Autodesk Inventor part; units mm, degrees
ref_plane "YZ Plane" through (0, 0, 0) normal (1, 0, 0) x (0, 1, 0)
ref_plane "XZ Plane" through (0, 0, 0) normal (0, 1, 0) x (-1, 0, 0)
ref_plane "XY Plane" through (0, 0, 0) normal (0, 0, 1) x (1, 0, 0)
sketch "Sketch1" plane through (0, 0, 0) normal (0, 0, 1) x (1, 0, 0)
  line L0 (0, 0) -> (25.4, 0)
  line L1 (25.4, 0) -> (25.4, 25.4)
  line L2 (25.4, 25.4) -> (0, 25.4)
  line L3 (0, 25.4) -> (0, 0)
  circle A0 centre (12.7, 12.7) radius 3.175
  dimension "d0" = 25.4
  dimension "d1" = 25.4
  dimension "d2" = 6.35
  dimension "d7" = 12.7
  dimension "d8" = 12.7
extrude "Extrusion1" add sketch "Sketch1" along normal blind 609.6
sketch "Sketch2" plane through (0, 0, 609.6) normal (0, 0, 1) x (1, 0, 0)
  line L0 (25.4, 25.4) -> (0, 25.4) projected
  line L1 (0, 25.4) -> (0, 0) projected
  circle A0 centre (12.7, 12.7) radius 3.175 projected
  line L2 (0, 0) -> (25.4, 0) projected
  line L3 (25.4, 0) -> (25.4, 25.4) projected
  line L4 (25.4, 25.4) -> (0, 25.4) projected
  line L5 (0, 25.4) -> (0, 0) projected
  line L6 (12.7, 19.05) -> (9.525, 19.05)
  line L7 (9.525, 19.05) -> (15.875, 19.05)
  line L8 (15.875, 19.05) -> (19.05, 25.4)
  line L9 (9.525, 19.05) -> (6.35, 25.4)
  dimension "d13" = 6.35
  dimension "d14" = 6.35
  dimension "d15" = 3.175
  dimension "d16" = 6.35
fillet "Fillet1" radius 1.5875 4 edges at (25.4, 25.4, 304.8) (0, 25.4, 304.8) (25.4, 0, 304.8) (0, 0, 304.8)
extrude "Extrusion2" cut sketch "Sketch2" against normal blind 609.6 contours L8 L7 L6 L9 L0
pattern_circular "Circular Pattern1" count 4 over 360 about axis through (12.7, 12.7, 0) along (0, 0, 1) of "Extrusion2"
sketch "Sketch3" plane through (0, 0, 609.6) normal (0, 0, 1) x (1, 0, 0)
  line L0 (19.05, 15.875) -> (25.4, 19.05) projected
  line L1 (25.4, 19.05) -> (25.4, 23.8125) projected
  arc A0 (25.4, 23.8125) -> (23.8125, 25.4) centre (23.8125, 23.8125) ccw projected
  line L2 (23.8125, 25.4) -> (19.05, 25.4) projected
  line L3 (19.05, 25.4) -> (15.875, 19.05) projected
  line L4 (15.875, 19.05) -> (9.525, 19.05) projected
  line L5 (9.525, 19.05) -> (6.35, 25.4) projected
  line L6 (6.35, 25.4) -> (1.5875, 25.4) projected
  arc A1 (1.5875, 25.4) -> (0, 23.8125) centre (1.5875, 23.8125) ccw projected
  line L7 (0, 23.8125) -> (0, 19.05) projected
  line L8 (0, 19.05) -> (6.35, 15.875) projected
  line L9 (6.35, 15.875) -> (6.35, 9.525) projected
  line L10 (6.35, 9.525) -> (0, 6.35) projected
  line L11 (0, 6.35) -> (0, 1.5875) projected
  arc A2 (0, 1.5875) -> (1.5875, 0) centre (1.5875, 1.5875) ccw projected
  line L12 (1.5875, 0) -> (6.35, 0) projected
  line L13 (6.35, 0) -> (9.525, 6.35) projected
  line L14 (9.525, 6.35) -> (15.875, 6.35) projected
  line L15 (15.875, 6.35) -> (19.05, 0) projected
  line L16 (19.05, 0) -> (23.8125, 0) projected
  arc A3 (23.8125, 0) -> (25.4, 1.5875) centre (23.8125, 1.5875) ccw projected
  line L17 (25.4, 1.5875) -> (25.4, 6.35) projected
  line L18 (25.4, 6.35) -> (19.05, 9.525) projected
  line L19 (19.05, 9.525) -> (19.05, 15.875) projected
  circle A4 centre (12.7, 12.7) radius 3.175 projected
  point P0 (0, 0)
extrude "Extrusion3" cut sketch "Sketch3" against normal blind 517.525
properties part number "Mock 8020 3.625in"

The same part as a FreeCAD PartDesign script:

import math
import FreeCAD as App
import Part
import Sketcher

V = App.Vector
Q = App.Units.Quantity


def edges_at(feature, points):
    """Names of the edges that pass closest to the given points."""
    edges = feature.Shape.Edges
    near = lambda p: min(range(len(edges)), key=lambda i: edges[i].distToShape(Part.Vertex(*p))[0])
    return sorted({f"Edge{near(p) + 1}" for p in points})


def add_polygon(sketch, points):
    """Adds a closed chain of lines whose ends are joined by coincident constraints."""
    first, n = sketch.GeometryCount, len(points)
    for a, b in zip(points, points[1:] + points[:1]):
        sketch.addGeometry(Part.LineSegment(App.Vector(*a, 0), App.Vector(*b, 0)), False)
    for i in range(n):
        sketch.addConstraint(Sketcher.Constraint("Coincident", first + i, 2, first + (i + 1) % n, 1))

doc = App.newDocument("Part")
params = doc.addObject("Spreadsheet::Sheet", "Params")
for row, (alias, value) in enumerate([
    ("sketch1_diameter", "0.25 in"),
    ("sketch1_width", "1 in"),
    ("pad1_length", "24 in"),
    ("fillet_radius", "0.0625 in"),
    ("sketch2_width", "0.25 in"),
    ("sketch2_width2", "0.5 in"),
    ("pocket1_length", "24 in"),
    ("sketch3_diameter", "0.25 in"),
    ("sketch3_radius", "0.0625 in"),
    ("sketch3_width", "0.25 in"),
    ("pocket2_length", "20.375 in"),
], start=1):
    params.set(f"A{row}", alias)
    params.set(f"B{row}", "=" + value)
    params.setAlias(f"B{row}", alias)

body = doc.addObject("PartDesign::Body", "Body")

sketch1 = body.newObject("Sketcher::SketchObject", "Sketch")
sketch1.AttachmentSupport = (doc.getObject("XY_Plane"), [""])
sketch1.MapMode = "FlatFace"
add_polygon(sketch1, [(0, 25.4), (0, 0), (25.4, 0), (25.4, 25.4)])
sketch1.addGeometry(Part.Circle(V(12.7, 12.7, 0), V(0, 0, 1), 3.2), False)
sketch1.addConstraint([
    Sketcher.Constraint("Vertical", 0),
    Sketcher.Constraint("Horizontal", 1),
    Sketcher.Constraint("Vertical", 2),
    Sketcher.Constraint("Horizontal", 3),
    Sketcher.Constraint("Coincident", 0, 2, -1, 1),
    Sketcher.Constraint("Equal", 3, 0),
    Sketcher.Constraint("Diameter", 4, Q("0.25 in")),
    Sketcher.Constraint("DistanceX", 1, 1, 1, 2, Q("1 in")),
    Sketcher.Constraint("DistanceX", -1, 1, 4, 3, Q("0.5 in")),
    Sketcher.Constraint("DistanceY", -1, 1, 4, 3, Q("0.5 in")),
])
sketch1.setExpression("Constraints[10]", "Params.sketch1_diameter")
sketch1.setExpression("Constraints[11]", "Params.sketch1_width")
pad1 = body.newObject("PartDesign::Pad", "Pad")
pad1.Profile = sketch1
pad1.setExpression("Length", "Params.pad1_length")
doc.recompute()

fillet = body.newObject("PartDesign::Fillet", "Fillet")
fillet.Base = (pad1, edges_at(pad1, [
    (25.4, 25.4, 304.8),
    (0, 25.4, 304.8),
    (25.4, 0, 304.8),
    (0, 0, 304.8),
]))
fillet.setExpression("Radius", "Params.fillet_radius")

sketch2 = body.newObject("Sketcher::SketchObject", "Sketch001")
sketch2.AttachmentSupport = (doc.getObject("XY_Plane"), [""])
sketch2.MapMode = "FlatFace"
sketch2.AttachmentOffset = App.Placement(V(0, 0, 24 * 25.4), App.Rotation())
add_polygon(sketch2, [(16, 19), (19, 25), (6, 25), (10, 19)])
sketch2.addConstraint([
    Sketcher.Constraint("Horizontal", 1),
    Sketcher.Constraint("Horizontal", 3),
    Sketcher.Constraint("Equal", 0, 2),
    Sketcher.Constraint("DistanceX", 3, 1, 3, 2, Q("0.25 in")),
    Sketcher.Constraint("DistanceX", -1, 1, 1, 2, Q("0.25 in")),
    Sketcher.Constraint("DistanceY", 2, 2, 1, 2, Q("0.25 in")),
    Sketcher.Constraint("DistanceX", 1, 2, 1, 1, Q("0.5 in")),
    Sketcher.Constraint("DistanceY", -1, 1, 0, 2, Q("1 in")),
])
sketch2.setExpression("Constraints[7]", "Params.sketch2_width")
sketch2.setExpression("Constraints[10]", "Params.sketch2_width2")
pocket1 = body.newObject("PartDesign::Pocket", "Pocket")
pocket1.Profile = sketch2
pocket1.setExpression("Length", "Params.pocket1_length")
doc.recompute()

datumline = body.newObject("PartDesign::Line", "DatumLine")
datumline.Placement = App.Placement(V(12.7, 12.7, 0), App.Rotation(V(0, 0, 1), V(0, 0, 1)))
polarpattern = body.newObject("PartDesign::PolarPattern", "PolarPattern")
polarpattern.Originals = [pocket1]
polarpattern.Axis = (datumline, [""])
polarpattern.Angle = 360
polarpattern.Occurrences = 4
body.Tip = polarpattern

sketch3 = body.newObject("Sketcher::SketchObject", "Sketch002")
sketch3.AttachmentSupport = (doc.getObject("XY_Plane"), [""])
sketch3.MapMode = "FlatFace"
sketch3.AttachmentOffset = App.Placement(V(0, 0, 24 * 25.4), App.Rotation())
sketch3.addGeometry([
    Part.LineSegment(V(19.1, 9.5, 0), V(19.1, 15.9, 0)),
    Part.LineSegment(V(19.1, 15.9, 0), V(25.4, 19.1, 0)),
    Part.LineSegment(V(25.4, 19.1, 0), V(25.4, 23.8, 0)),
    Part.ArcOfCircle(Part.Circle(V(23.8, 23.8, 0), V(0, 0, 1), 1.6), math.radians(0), math.radians(90)),
    Part.LineSegment(V(23.8, 25.4, 0), V(19.1, 25.4, 0)),
    Part.LineSegment(V(19.1, 25.4, 0), V(15.9, 19.1, 0)),
    Part.LineSegment(V(15.9, 19.1, 0), V(9.5, 19.1, 0)),
    Part.LineSegment(V(9.5, 19.1, 0), V(6.3, 25.4, 0)),
    Part.LineSegment(V(6.3, 25.4, 0), V(1.6, 25.4, 0)),
    Part.ArcOfCircle(Part.Circle(V(1.6, 23.8, 0), V(0, 0, 1), 1.6), math.radians(90), math.radians(180)),
    Part.LineSegment(V(0, 23.8, 0), V(0, 19.1, 0)),
    Part.LineSegment(V(0, 19.1, 0), V(6.3, 15.9, 0)),
    Part.LineSegment(V(6.3, 15.9, 0), V(6.3, 9.5, 0)),
    Part.LineSegment(V(6.3, 9.5, 0), V(0, 6.3, 0)),
    Part.LineSegment(V(0, 6.3, 0), V(0, 1.6, 0)),
    Part.ArcOfCircle(Part.Circle(V(1.6, 1.6, 0), V(0, 0, 1), 1.6), math.radians(180), math.radians(270)),
    Part.LineSegment(V(1.6, 0, 0), V(6.3, 0, 0)),
    Part.LineSegment(V(6.3, 0, 0), V(9.5, 6.3, 0)),
    Part.LineSegment(V(9.5, 6.3, 0), V(15.9, 6.3, 0)),
    Part.LineSegment(V(15.9, 6.3, 0), V(19.1, 0, 0)),
    Part.LineSegment(V(19.1, 0, 0), V(23.8, 0, 0)),
    Part.ArcOfCircle(Part.Circle(V(23.8, 1.6, 0), V(0, 0, 1), 1.6), math.radians(-90), math.radians(0)),
    Part.LineSegment(V(25.4, 1.6, 0), V(25.4, 6.3, 0)),
    Part.LineSegment(V(25.4, 6.3, 0), V(19.1, 9.5, 0)),
    Part.Circle(V(12.7, 12.7, 0), V(0, 0, 1), 3.2),
], False)
sketch3.addConstraint([
    Sketcher.Constraint("Coincident", 0, 2, 1, 1),
    Sketcher.Constraint("Coincident", 1, 2, 2, 1),
    Sketcher.Constraint("Tangent", 2, 2, 3, 1),
    Sketcher.Constraint("Tangent", 3, 2, 4, 1),
    Sketcher.Constraint("Coincident", 4, 2, 5, 1),
    Sketcher.Constraint("Coincident", 5, 2, 6, 1),
    Sketcher.Constraint("Coincident", 6, 2, 7, 1),
    Sketcher.Constraint("Coincident", 7, 2, 8, 1),
    Sketcher.Constraint("Tangent", 8, 2, 9, 1),
    Sketcher.Constraint("Tangent", 9, 2, 10, 1),
    Sketcher.Constraint("Coincident", 10, 2, 11, 1),
    Sketcher.Constraint("Coincident", 11, 2, 12, 1),
    Sketcher.Constraint("Coincident", 12, 2, 13, 1),
    Sketcher.Constraint("Coincident", 13, 2, 14, 1),
    Sketcher.Constraint("Tangent", 14, 2, 15, 1),
    Sketcher.Constraint("Tangent", 15, 2, 16, 1),
    Sketcher.Constraint("Coincident", 16, 2, 17, 1),
    Sketcher.Constraint("Coincident", 17, 2, 18, 1),
    Sketcher.Constraint("Coincident", 18, 2, 19, 1),
    Sketcher.Constraint("Coincident", 19, 2, 20, 1),
    Sketcher.Constraint("Tangent", 20, 2, 21, 1),
    Sketcher.Constraint("Tangent", 21, 2, 22, 1),
    Sketcher.Constraint("Coincident", 22, 2, 23, 1),
    Sketcher.Constraint("Coincident", 23, 2, 0, 1),
    Sketcher.Constraint("Vertical", 0),
    Sketcher.Constraint("Vertical", 2),
    Sketcher.Constraint("Horizontal", 4),
    Sketcher.Constraint("Horizontal", 6),
    Sketcher.Constraint("Horizontal", 8),
    Sketcher.Constraint("Vertical", 10),
    Sketcher.Constraint("Vertical", 12),
    Sketcher.Constraint("Vertical", 14),
    Sketcher.Constraint("Horizontal", 16),
    Sketcher.Constraint("Horizontal", 18),
    Sketcher.Constraint("Horizontal", 20),
    Sketcher.Constraint("Vertical", 22),
    Sketcher.Constraint("Equal", 3, 9),
    Sketcher.Constraint("Equal", 9, 15),
    Sketcher.Constraint("Equal", 15, 21),
    Sketcher.Constraint("PointOnObject", 9, 2, -2),
    Sketcher.Constraint("PointOnObject", 13, 2, -2),
    Sketcher.Constraint("PointOnObject", 15, 2, -1),
    Sketcher.Constraint("PointOnObject", 19, 2, -1),
    Sketcher.Constraint("Perpendicular", 1, 7),
    Sketcher.Constraint("Perpendicular", 5, 11),
    Sketcher.Constraint("Perpendicular", 7, 13),
    Sketcher.Constraint("Perpendicular", 11, 17),
    Sketcher.Constraint("Perpendicular", 13, 19),
    Sketcher.Constraint("Perpendicular", 17, 23),
    Sketcher.Constraint("Horizontal", 3, 3, 9, 3),
    Sketcher.Constraint("Horizontal", 1, 2, 5, 2),
    Sketcher.Constraint("Horizontal", 6, 2, 10, 2),
    Sketcher.Constraint("Horizontal", 0, 2, 11, 2),
    Sketcher.Constraint("Horizontal", 13, 2, 17, 2),
    Sketcher.Constraint("Horizontal", 18, 2, 22, 2),
    Sketcher.Constraint("Horizontal", 12, 2, 23, 2),
    Sketcher.Constraint("Vertical", 3, 3, 21, 3),
    Sketcher.Constraint("Vertical", 0, 2, 4, 2),
    Sketcher.Constraint("Vertical", 7, 2, 11, 2),
    Sketcher.Constraint("Vertical", 12, 2, 16, 2),
    Sketcher.Constraint("Vertical", 6, 2, 17, 2),
    Sketcher.Constraint("Vertical", 5, 2, 18, 2),
    Sketcher.Constraint("Equal", 18, 0),
    Sketcher.Constraint("Equal", 20, 2),
    Sketcher.Constraint("Diameter", 24, Q("0.25 in")),
    Sketcher.Constraint("DistanceX", -1, 1, 1, 2, Q("1 in")),
    Sketcher.Constraint("Radius", 3, Q("0.0625 in")),
    Sketcher.Constraint("DistanceX", 6, 2, 6, 1, Q("0.25 in")),
    Sketcher.Constraint("DistanceX", -1, 1, 24, 3, Q("0.5 in")),
    Sketcher.Constraint("DistanceY", -1, 1, 24, 3, Q("0.5 in")),
    Sketcher.Constraint("DistanceX", 7, 2, 4, 2, Q("0.5 in")),
])
sketch3.setExpression("Constraints[64]", "Params.sketch3_diameter")
sketch3.setExpression("Constraints[66]", "Params.sketch3_radius")
sketch3.setExpression("Constraints[67]", "Params.sketch3_width")
pocket2 = body.newObject("PartDesign::Pocket", "Pocket001")
pocket2.Profile = sketch3
pocket2.setExpression("Length", "Params.pocket2_length")

doc.recompute()
